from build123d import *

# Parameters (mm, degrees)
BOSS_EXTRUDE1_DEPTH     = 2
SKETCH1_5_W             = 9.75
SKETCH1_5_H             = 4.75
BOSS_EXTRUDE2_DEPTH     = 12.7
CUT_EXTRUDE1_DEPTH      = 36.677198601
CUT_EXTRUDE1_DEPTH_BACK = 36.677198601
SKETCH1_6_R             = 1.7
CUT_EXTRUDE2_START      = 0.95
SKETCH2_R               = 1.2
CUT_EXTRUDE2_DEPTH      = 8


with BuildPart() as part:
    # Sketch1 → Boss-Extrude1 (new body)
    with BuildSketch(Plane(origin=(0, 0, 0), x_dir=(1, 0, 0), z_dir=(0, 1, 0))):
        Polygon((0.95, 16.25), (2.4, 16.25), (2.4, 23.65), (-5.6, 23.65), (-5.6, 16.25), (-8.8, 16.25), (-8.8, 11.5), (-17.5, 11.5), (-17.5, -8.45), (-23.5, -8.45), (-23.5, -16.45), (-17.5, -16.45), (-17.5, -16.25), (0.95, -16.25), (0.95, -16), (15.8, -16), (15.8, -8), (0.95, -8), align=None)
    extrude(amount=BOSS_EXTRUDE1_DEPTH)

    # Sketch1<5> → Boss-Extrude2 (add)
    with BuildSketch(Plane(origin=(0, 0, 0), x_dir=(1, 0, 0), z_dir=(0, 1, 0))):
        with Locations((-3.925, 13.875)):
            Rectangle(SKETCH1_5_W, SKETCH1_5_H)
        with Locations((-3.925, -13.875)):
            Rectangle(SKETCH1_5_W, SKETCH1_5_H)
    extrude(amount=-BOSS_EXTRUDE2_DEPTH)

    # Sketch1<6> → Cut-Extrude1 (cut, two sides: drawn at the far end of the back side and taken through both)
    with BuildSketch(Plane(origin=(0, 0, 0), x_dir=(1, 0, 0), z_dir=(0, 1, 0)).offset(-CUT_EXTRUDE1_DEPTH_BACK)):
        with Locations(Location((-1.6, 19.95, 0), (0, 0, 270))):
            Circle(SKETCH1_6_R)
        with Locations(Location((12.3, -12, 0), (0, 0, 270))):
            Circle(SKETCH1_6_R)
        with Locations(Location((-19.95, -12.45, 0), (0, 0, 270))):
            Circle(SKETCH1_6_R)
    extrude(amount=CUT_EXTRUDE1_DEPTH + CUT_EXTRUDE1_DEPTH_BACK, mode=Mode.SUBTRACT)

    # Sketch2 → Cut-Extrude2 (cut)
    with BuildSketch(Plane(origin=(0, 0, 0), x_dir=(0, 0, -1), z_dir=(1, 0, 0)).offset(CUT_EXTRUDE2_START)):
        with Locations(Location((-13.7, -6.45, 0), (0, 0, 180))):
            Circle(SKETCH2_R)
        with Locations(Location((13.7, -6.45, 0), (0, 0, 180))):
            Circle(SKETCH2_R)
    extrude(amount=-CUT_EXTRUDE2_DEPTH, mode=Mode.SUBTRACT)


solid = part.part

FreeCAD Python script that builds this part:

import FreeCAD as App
import Part
import Sketcher

doc = App.newDocument("Part")
body = doc.addObject("PartDesign::Body", "Body")

# Sketch on XZ plane
sketch1 = body.newObject("Sketcher::SketchObject", "Sketch")
sketch1.AttachmentSupport = (doc.getObject("XZ_Plane"), [""])
sketch1.MapMode = "FlatFace"
sketch1.addGeometry([
    Part.LineSegment(App.Vector(0.95, -16.25, 0), App.Vector(2.4, -16.25, 0)),  # 0
    Part.LineSegment(App.Vector(2.4, -16.25, 0), App.Vector(2.4, -23.65, 0)),  # 1
    Part.LineSegment(App.Vector(2.4, -23.65, 0), App.Vector(-5.6, -23.65, 0)),  # 2
    Part.LineSegment(App.Vector(-5.6, -23.65, 0), App.Vector(-5.6, -16.25, 0)),  # 3
    Part.LineSegment(App.Vector(-5.6, -16.25, 0), App.Vector(-8.8, -16.25, 0)),  # 4
    Part.LineSegment(App.Vector(-8.8, -16.25, 0), App.Vector(-8.8, -11.5, 0)),  # 5
    Part.LineSegment(App.Vector(-8.8, -11.5, 0), App.Vector(-17.5, -11.5, 0)),  # 6
    Part.LineSegment(App.Vector(-17.5, -11.5, 0), App.Vector(-17.5, 8.45, 0)),  # 7
    Part.LineSegment(App.Vector(-17.5, 8.45, 0), App.Vector(-23.5, 8.45, 0)),  # 8
    Part.LineSegment(App.Vector(-23.5, 8.45, 0), App.Vector(-23.5, 16.45, 0)),  # 9
    Part.LineSegment(App.Vector(-23.5, 16.45, 0), App.Vector(-17.5, 16.45, 0)),  # 10
    Part.LineSegment(App.Vector(-17.5, 16.45, 0), App.Vector(-17.5, 16.25, 0)),  # 11
    Part.LineSegment(App.Vector(-17.5, 16.25, 0), App.Vector(0.95, 16.25, 0)),  # 12
    Part.LineSegment(App.Vector(0.95, 16.25, 0), App.Vector(0.95, 16, 0)),  # 13
    Part.LineSegment(App.Vector(0.95, 16, 0), App.Vector(15.8, 16, 0)),  # 14
    Part.LineSegment(App.Vector(15.8, 16, 0), App.Vector(15.8, 8, 0)),  # 15
    Part.LineSegment(App.Vector(15.8, 8, 0), App.Vector(0.95, 8, 0)),  # 16
    Part.LineSegment(App.Vector(0.95, 8, 0), App.Vector(0.95, -16.25, 0)),  # 17
], False)
sketch1.addConstraint([
    Sketcher.Constraint("Coincident", 0, 2, 1, 1),
    Sketcher.Constraint("Coincident", 1, 2, 2, 1),
    Sketcher.Constraint("Coincident", 2, 2, 3, 1),
    Sketcher.Constraint("Coincident", 3, 2, 4, 1),
    Sketcher.Constraint("Coincident", 4, 2, 5, 1),
    Sketcher.Constraint("Coincident", 5, 2, 6, 1),
    Sketcher.Constraint("Coincident", 6, 2, 7, 1),
    Sketcher.Constraint("Coincident", 7, 2, 8, 1),
    Sketcher.Constraint("Coincident", 8, 2, 9, 1),
    Sketcher.Constraint("Coincident", 9, 2, 10, 1),
    Sketcher.Constraint("Coincident", 10, 2, 11, 1),
    Sketcher.Constraint("Coincident", 11, 2, 12, 1),
    Sketcher.Constraint("Coincident", 12, 2, 13, 1),
    Sketcher.Constraint("Coincident", 13, 2, 14, 1),
    Sketcher.Constraint("Coincident", 14, 2, 15, 1),
    Sketcher.Constraint("Coincident", 15, 2, 16, 1),
    Sketcher.Constraint("Coincident", 16, 2, 17, 1),
    Sketcher.Constraint("Coincident", 17, 2, 0, 1),
    Sketcher.Constraint("Horizontal", 0),
    Sketcher.Constraint("Vertical", 1),
    Sketcher.Constraint("Horizontal", 2),
    Sketcher.Constraint("Vertical", 3),
    Sketcher.Constraint("Horizontal", 4),
    Sketcher.Constraint("Vertical", 5),
    Sketcher.Constraint("Horizontal", 6),
    Sketcher.Constraint("Vertical", 7),
    Sketcher.Constraint("Horizontal", 8),
    Sketcher.Constraint("Vertical", 9),
    Sketcher.Constraint("Horizontal", 10),
    Sketcher.Constraint("Vertical", 11),
    Sketcher.Constraint("Horizontal", 12),
    Sketcher.Constraint("Vertical", 13),
    Sketcher.Constraint("Horizontal", 14),
    Sketcher.Constraint("Vertical", 15),
    Sketcher.Constraint("Horizontal", 16),
    Sketcher.Constraint("Vertical", 17),
    Sketcher.Constraint("Symmetric", 12, 2, 17, 2, -1),
    Sketcher.Constraint("Horizontal", 0, 2, 3, 2),
    Sketcher.Constraint("Vertical", 7, 2, 10, 2),
    Sketcher.Constraint("Equal", 2, 9),
    Sketcher.Constraint("Equal", 9, 15),
    Sketcher.Constraint("DistanceX", 2, 2, 2, 1, 8.0),
    Sketcher.Constraint("DistanceX", 8, 2, 8, 1, 6.0),
    Sketcher.Constraint("DistanceX", 4, 2, 4, 1, 3.2),
    Sketcher.Constraint("DistanceX", 6, 2, 6, 1, 8.7),
    Sketcher.Constraint("DistanceY", 1, 2, 1, 1, 7.4),
    Sketcher.Constraint("DistanceY", 11, 2, 11, 1, 0.2),
    Sketcher.Constraint("DistanceY", -1, 1, 13, 2, 16.0),
    Sketcher.Constraint("DistanceX", 0, 1, 0, 2, 1.45),
    Sketcher.Constraint("DistanceX", 14, 1, 14, 2, 14.85),
    Sketcher.Constraint("DistanceY", 5, 1, 5, 2, 4.75),
    Sketcher.Constraint("DistanceY", 7, 1, 7, 2, 19.95),
    Sketcher.Constraint("DistanceX", -1, 1, 0, 2, 2.4),
])
pad1 = body.newObject("PartDesign::Pad", "Pad")
pad1.Profile = sketch1
pad1.Length = 2
pad1.Reversed = True

# Sketch on XZ plane
sketch2 = body.newObject("Sketcher::SketchObject", "Sketch001")
sketch2.AttachmentSupport = (doc.getObject("XZ_Plane"), [""])
sketch2.MapMode = "FlatFace"
sketch2.addGeometry([
    Part.LineSegment(App.Vector(-8.8, -16.25, 0), App.Vector(-8.8, -11.5, 0)),  # 0
    Part.LineSegment(App.Vector(-8.8, -11.5, 0), App.Vector(0.95, -11.5, 0)),  # 1
    Part.LineSegment(App.Vector(0.95, -11.5, 0), App.Vector(0.95, -16.25, 0)),  # 2
    Part.LineSegment(App.Vector(0.95, -16.25, 0), App.Vector(-8.8, -16.25, 0)),  # 3
    Part.LineSegment(App.Vector(-8.8, 11.5, 0), App.Vector(-8.8, 16.25, 0)),  # 4
    Part.LineSegment(App.Vector(-8.8, 16.25, 0), App.Vector(0.95, 16.25, 0)),  # 5
    Part.LineSegment(App.Vector(0.95, 16.25, 0), App.Vector(0.95, 11.5, 0)),  # 6
    Part.LineSegment(App.Vector(0.95, 11.5, 0), App.Vector(-8.8, 11.5, 0)),  # 7
], False)
sketch2.addConstraint([
    Sketcher.Constraint("Coincident", 0, 2, 1, 1),
    Sketcher.Constraint("Coincident", 1, 2, 2, 1),
    Sketcher.Constraint("Coincident", 2, 2, 3, 1),
    Sketcher.Constraint("Coincident", 3, 2, 0, 1),
    Sketcher.Constraint("Coincident", 4, 2, 5, 1),
    Sketcher.Constraint("Coincident", 5, 2, 6, 1),
    Sketcher.Constraint("Coincident", 6, 2, 7, 1),
    Sketcher.Constraint("Coincident", 7, 2, 4, 1),
    Sketcher.Constraint("Vertical", 0),
    Sketcher.Constraint("Horizontal", 1),
    Sketcher.Constraint("Vertical", 2),
    Sketcher.Constraint("Horizontal", 3),
    Sketcher.Constraint("Vertical", 4),
    Sketcher.Constraint("Horizontal", 5),
    Sketcher.Constraint("Vertical", 6),
    Sketcher.Constraint("Horizontal", 7),
    Sketcher.Constraint("Symmetric", 3, 2, 4, 2, -1),
    Sketcher.Constraint("Symmetric", 1, 2, 6, 2, -1),
    Sketcher.Constraint("DistanceY", 1, 2, 6, 2, 23.0),
    Sketcher.Constraint("DistanceX", 1, 1, 1, 2, 9.75),
    Sketcher.Constraint("DistanceY", 0, 1, 0, 2, 4.75),
    Sketcher.Constraint("DistanceX", 0, 2, -1, 1, 8.8),
])
pad2 = body.newObject("PartDesign::Pad", "Pad001")
pad2.Profile = sketch2
pad2.Length = 12.7

# Sketch on XZ plane
sketch3 = body.newObject("Sketcher::SketchObject", "Sketch002")
sketch3.AttachmentSupport = (doc.getObject("XZ_Plane"), [""])
sketch3.MapMode = "FlatFace"
sketch3.addGeometry([
    Part.Circle(App.Vector(-1.6, -19.95, 0), App.Vector(0, 0, 1), 1.7),
    Part.Circle(App.Vector(12.3, 12, 0), App.Vector(0, 0, 1), 1.7),
    Part.Circle(App.Vector(-19.95, 12.45, 0), App.Vector(0, 0, 1), 1.7),
], False)
sketch3.addConstraint([
    Sketcher.Constraint("Equal", 0, 1),
    Sketcher.Constraint("Equal", 1, 2),
    Sketcher.Constraint("Diameter", 0, 3.4),
    Sketcher.Constraint("DistanceY", -1, 1, 1, 3, 12.0),
    Sketcher.Constraint("DistanceX", 0, 3, -1, 1, 1.6),
    Sketcher.Constraint("DistanceX", -1, 1, 1, 3, 12.3),
    Sketcher.Constraint("DistanceY", 0, 3, 2, 3, 32.4),
    Sketcher.Constraint("DistanceY", 0, 3, -1, 1, 19.95),
    Sketcher.Constraint("DistanceX", 2, 3, -1, 1, 19.95),
])
pocket1 = body.newObject("PartDesign::Pocket", "Pocket")
pocket1.Profile = sketch3
pocket1.Type = "ThroughAll"
pocket1.Midplane = True

# Sketch on YZ plane
sketch4 = body.newObject("Sketcher::SketchObject", "Sketch003")
sketch4.AttachmentSupport = (doc.getObject("YZ_Plane"), [""])
sketch4.MapMode = "FlatFace"
sketch4.AttachmentOffset = App.Placement(App.Vector(0, 0, 0.95), App.Rotation())
sketch4.addGeometry([
    Part.Circle(App.Vector(-6.45, 13.7, 0), App.Vector(0, 0, 1), 1.2),
    Part.Circle(App.Vector(-6.45, -13.7, 0), App.Vector(0, 0, 1), 1.2),
], False)
sketch4.addConstraint([
    Sketcher.Constraint("Equal", 0, 1),
    Sketcher.Constraint("Symmetric", 0, 3, 1, 3, -1),
    Sketcher.Constraint("Diameter", 0, 2.4),
    Sketcher.Constraint("DistanceY", -1, 1, 0, 3, 13.7),
    Sketcher.Constraint("DistanceX", 0, 3, -1, 1, 6.45),
])
pocket2 = body.newObject("PartDesign::Pocket", "Pocket001")
pocket2.Profile = sketch4
pocket2.Length = 8

doc.recompute()
